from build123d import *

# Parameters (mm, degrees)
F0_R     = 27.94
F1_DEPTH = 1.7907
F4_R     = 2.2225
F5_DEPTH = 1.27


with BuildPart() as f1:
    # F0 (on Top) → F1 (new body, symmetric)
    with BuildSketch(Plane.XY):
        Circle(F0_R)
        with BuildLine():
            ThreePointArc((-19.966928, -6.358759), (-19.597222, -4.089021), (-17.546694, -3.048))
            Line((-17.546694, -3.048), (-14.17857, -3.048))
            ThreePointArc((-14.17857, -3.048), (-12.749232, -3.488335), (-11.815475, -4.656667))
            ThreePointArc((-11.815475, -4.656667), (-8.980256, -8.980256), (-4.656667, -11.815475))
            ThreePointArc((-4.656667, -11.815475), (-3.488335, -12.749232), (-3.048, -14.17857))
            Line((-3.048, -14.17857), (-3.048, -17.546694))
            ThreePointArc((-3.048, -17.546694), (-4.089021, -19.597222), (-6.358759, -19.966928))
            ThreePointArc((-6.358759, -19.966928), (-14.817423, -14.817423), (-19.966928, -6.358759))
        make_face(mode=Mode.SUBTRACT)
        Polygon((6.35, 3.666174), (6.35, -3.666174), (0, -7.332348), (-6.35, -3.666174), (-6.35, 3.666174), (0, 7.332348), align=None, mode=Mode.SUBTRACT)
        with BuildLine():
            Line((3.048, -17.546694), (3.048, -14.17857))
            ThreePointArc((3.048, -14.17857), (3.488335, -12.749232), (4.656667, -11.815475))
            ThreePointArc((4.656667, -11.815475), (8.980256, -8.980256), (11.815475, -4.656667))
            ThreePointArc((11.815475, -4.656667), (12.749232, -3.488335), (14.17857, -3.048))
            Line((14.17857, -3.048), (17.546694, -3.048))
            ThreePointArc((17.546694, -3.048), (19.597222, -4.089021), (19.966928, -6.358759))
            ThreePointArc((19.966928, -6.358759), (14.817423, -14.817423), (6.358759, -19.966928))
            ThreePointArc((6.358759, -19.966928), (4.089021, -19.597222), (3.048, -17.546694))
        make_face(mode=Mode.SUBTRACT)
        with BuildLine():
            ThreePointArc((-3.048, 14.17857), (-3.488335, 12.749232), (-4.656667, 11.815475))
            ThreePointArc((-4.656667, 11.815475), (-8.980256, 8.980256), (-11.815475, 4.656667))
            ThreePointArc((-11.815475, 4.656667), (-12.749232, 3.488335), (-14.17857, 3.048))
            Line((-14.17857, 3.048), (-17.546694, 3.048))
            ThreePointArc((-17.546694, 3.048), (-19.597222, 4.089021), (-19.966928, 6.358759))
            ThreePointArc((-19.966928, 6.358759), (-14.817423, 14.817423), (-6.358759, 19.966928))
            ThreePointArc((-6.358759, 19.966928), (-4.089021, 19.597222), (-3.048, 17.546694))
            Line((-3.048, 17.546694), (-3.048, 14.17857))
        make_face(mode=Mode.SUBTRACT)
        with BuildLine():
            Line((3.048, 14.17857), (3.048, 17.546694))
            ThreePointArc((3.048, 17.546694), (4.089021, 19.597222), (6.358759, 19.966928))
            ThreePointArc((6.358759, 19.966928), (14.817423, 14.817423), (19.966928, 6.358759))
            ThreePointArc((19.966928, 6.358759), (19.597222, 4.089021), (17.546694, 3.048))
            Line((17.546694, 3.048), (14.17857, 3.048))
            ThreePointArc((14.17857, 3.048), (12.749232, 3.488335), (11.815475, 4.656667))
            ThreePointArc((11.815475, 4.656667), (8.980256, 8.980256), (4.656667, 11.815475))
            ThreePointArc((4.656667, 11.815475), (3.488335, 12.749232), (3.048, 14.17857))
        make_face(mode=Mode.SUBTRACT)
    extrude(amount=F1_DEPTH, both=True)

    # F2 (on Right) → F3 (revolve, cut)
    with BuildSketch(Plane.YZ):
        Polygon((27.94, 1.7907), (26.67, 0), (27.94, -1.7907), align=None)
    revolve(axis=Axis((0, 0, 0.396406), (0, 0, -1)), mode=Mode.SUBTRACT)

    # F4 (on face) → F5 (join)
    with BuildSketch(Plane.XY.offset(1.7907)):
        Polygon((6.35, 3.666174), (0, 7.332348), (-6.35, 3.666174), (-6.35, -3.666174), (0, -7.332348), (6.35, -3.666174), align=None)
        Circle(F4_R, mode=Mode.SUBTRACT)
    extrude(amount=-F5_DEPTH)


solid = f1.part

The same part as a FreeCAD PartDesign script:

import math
import FreeCAD as App
import Part
import Sketcher
from FreeCAD import Vector
Q = App.Units.Quantity

doc = App.newDocument("Part")
params = doc.addObject("Spreadsheet::Sheet", "Params")
for row, (alias, value) in enumerate([
    ("sketch1_diameter", "2.2 in"),
    ("sketch1_radius", "0.1 in"),
    ("sketch1_radius2", "0.5 in"),
    ("sketch1_radius3", "0.8249999 in"),
    ("pad1_length", "0.141 in"),
    ("sketch2_height", "0.141 in"),
    ("groove_angle", "360 deg"),
    ("sketch3_diameter", "0.175 in"),
    ("pad2_length", "0.05 in"),
], start=1):
    params.set(f"A{row}", alias)
    params.set(f"B{row}", "=" + value)
    params.setAlias(f"B{row}", alias)

body = doc.addObject("PartDesign::Body", "Body")

# Sketch on XY plane
sketch1 = doc.addObject("Sketcher::SketchObject", "Sketch")
body.addObject(sketch1)
sketch1.AttachmentSupport = (doc.XY_Plane, [""])
sketch1.MapMode = "FlatFace"
sketch1.addGeometry([
    Part.Circle(Vector(0, 0, 0), Vector(0, 0, 1), 27.9),  # 0
    Part.ArcOfCircle(Part.Circle(Vector(0, 0, 0), Vector(0, 0, 1), 21), math.radians(-162), math.radians(-108)),  # 1
    Part.ArcOfCircle(Part.Circle(Vector(-17.5, -5.6, 0), Vector(0, 0, 1), 2.5), math.radians(90), math.radians(198)),  # 2
    Part.LineSegment(Vector(-17.5, -3, 0), Vector(-14.2, -3, 0)),  # 3
    Part.ArcOfCircle(Part.Circle(Vector(-14.2, -5.6, 0), Vector(0, 0, 1), 2.5), math.radians(22), math.radians(90)),  # 4
    Part.ArcOfCircle(Part.Circle(Vector(0, 0, 0), Vector(0, 0, 1), 12.7), math.radians(-158), math.radians(-112)),  # 5
    Part.ArcOfCircle(Part.Circle(Vector(-5.6, -14.2, 0), Vector(0, 0, 1), 2.5), math.radians(0), math.radians(68)),  # 6
    Part.LineSegment(Vector(-3, -14.2, 0), Vector(-3, -17.5, 0)),  # 7
    Part.ArcOfCircle(Part.Circle(Vector(-5.6, -17.5, 0), Vector(0, 0, 1), 2.5), math.radians(-108), math.radians(0)),  # 8
    Part.ArcOfCircle(Part.Circle(Vector(5.6, -17.5, 0), Vector(0, 0, 1), 2.5), math.radians(180), math.radians(288)),  # 9
    Part.LineSegment(Vector(3, -17.5, 0), Vector(3, -14.2, 0)),  # 10
    Part.ArcOfCircle(Part.Circle(Vector(5.6, -14.2, 0), Vector(0, 0, 1), 2.5), math.radians(112), math.radians(180)),  # 11
    Part.ArcOfCircle(Part.Circle(Vector(0, 0, 0), Vector(0, 0, 1), 12.7), math.radians(-68), math.radians(-22)),  # 12
    Part.ArcOfCircle(Part.Circle(Vector(14.2, -5.6, 0), Vector(0, 0, 1), 2.5), math.radians(90), math.radians(158)),  # 13
    Part.LineSegment(Vector(14.2, -3, 0), Vector(17.5, -3, 0)),  # 14
    Part.ArcOfCircle(Part.Circle(Vector(17.5, -5.6, 0), Vector(0, 0, 1), 2.5), math.radians(-18), math.radians(90)),  # 15
    Part.ArcOfCircle(Part.Circle(Vector(0, 0, 0), Vector(0, 0, 1), 21), math.radians(-72), math.radians(-18)),  # 16
    Part.LineSegment(Vector(-3, 17.5, 0), Vector(-3, 14.2, 0)),  # 17
    Part.ArcOfCircle(Part.Circle(Vector(-5.6, 14.2, 0), Vector(0, 0, 1), 2.5), math.radians(-68), math.radians(0)),  # 18
    Part.ArcOfCircle(Part.Circle(Vector(0, 0, 0), Vector(0, 0, 1), 12.7), math.radians(112), math.radians(158)),  # 19
    Part.ArcOfCircle(Part.Circle(Vector(-14.2, 5.6, 0), Vector(0, 0, 1), 2.5), math.radians(-90), math.radians(-22)),  # 20
    Part.LineSegment(Vector(-14.2, 3, 0), Vector(-17.5, 3, 0)),  # 21
    Part.ArcOfCircle(Part.Circle(Vector(-17.5, 5.6, 0), Vector(0, 0, 1), 2.5), math.radians(162), math.radians(270)),  # 22
    Part.ArcOfCircle(Part.Circle(Vector(0, 0, 0), Vector(0, 0, 1), 21), math.radians(108), math.radians(162)),  # 23
    Part.ArcOfCircle(Part.Circle(Vector(-5.6, 17.5, 0), Vector(0, 0, 1), 2.5), math.radians(0), math.radians(108)),  # 24
    Part.LineSegment(Vector(0, 7.3, 0), Vector(6.3, 3.7, 0)),  # 25
    Part.LineSegment(Vector(6.3, 3.7, 0), Vector(6.3, -3.7, 0)),  # 26
    Part.LineSegment(Vector(6.3, -3.7, 0), Vector(0, -7.3, 0)),  # 27
    Part.LineSegment(Vector(0, -7.3, 0), Vector(-6.3, -3.7, 0)),  # 28
    Part.LineSegment(Vector(-6.3, -3.7, 0), Vector(-6.3, 3.7, 0)),  # 29
    Part.LineSegment(Vector(-6.3, 3.7, 0), Vector(0, 7.3, 0)),  # 30
    Part.ArcOfCircle(Part.Circle(Vector(5.6, 14.2, 0), Vector(0, 0, 1), 2.5), math.radians(180), math.radians(248)),  # 31
    Part.LineSegment(Vector(3, 14.2, 0), Vector(3, 17.5, 0)),  # 32
    Part.ArcOfCircle(Part.Circle(Vector(5.6, 17.5, 0), Vector(0, 0, 1), 2.5), math.radians(72), math.radians(180)),  # 33
    Part.ArcOfCircle(Part.Circle(Vector(0, 0, 0), Vector(0, 0, 1), 21), math.radians(18), math.radians(72)),  # 34
    Part.ArcOfCircle(Part.Circle(Vector(17.5, 5.6, 0), Vector(0, 0, 1), 2.5), math.radians(-90), math.radians(18)),  # 35
    Part.LineSegment(Vector(17.5, 3, 0), Vector(14.2, 3, 0)),  # 36
    Part.ArcOfCircle(Part.Circle(Vector(14.2, 5.6, 0), Vector(0, 0, 1), 2.5), math.radians(-158), math.radians(-90)),  # 37
    Part.ArcOfCircle(Part.Circle(Vector(0, 0, 0), Vector(0, 0, 1), 12.7), math.radians(22), math.radians(68)),  # 38
], False)
sketch1.addConstraint([
    Sketcher.Constraint("Tangent", 1, 1, 2, 2),
    Sketcher.Constraint("Tangent", 2, 1, 3, 1),
    Sketcher.Constraint("Tangent", 3, 2, 4, 2),
    Sketcher.Constraint("Tangent", 4, 1, 5, 1),
    Sketcher.Constraint("Tangent", 5, 2, 6, 2),
    Sketcher.Constraint("Tangent", 6, 1, 7, 1),
    Sketcher.Constraint("Tangent", 7, 2, 8, 2),
    Sketcher.Constraint("Tangent", 8, 1, 1, 2),
    Sketcher.Constraint("Tangent", 9, 1, 10, 1),
    Sketcher.Constraint("Tangent", 10, 2, 11, 2),
    Sketcher.Constraint("Tangent", 11, 1, 12, 1),
    Sketcher.Constraint("Tangent", 12, 2, 13, 2),
    Sketcher.Constraint("Tangent", 13, 1, 14, 1),
    Sketcher.Constraint("Tangent", 14, 2, 15, 2),
    Sketcher.Constraint("Tangent", 15, 1, 16, 2),
    Sketcher.Constraint("Tangent", 16, 1, 9, 2),
    Sketcher.Constraint("Tangent", 17, 2, 18, 2),
    Sketcher.Constraint("Tangent", 18, 1, 19, 1),
    Sketcher.Constraint("Tangent", 19, 2, 20, 2),
    Sketcher.Constraint("Tangent", 20, 1, 21, 1),
    Sketcher.Constraint("Tangent", 21, 2, 22, 2),
    Sketcher.Constraint("Tangent", 22, 1, 23, 2),
    Sketcher.Constraint("Tangent", 23, 1, 24, 2),
    Sketcher.Constraint("Tangent", 24, 1, 17, 1),
    Sketcher.Constraint("Coincident", 25, 2, 26, 1),
    Sketcher.Constraint("Coincident", 26, 2, 27, 1),
    Sketcher.Constraint("Coincident", 27, 2, 28, 1),
    Sketcher.Constraint("Coincident", 28, 2, 29, 1),
    Sketcher.Constraint("Coincident", 29, 2, 30, 1),
    Sketcher.Constraint("Coincident", 30, 2, 25, 1),
    Sketcher.Constraint("Tangent", 31, 1, 32, 1),
    Sketcher.Constraint("Tangent", 32, 2, 33, 2),
    Sketcher.Constraint("Tangent", 33, 1, 34, 2),
    Sketcher.Constraint("Tangent", 34, 1, 35, 2),
    Sketcher.Constraint("Tangent", 35, 1, 36, 1),
    Sketcher.Constraint("Tangent", 36, 2, 37, 2),
    Sketcher.Constraint("Tangent", 37, 1, 38, 1),
    Sketcher.Constraint("Tangent", 38, 2, 31, 2),
    Sketcher.Constraint("Horizontal", 3),
    Sketcher.Constraint("Vertical", 7),
    Sketcher.Constraint("Vertical", 10),
    Sketcher.Constraint("Horizontal", 14),
    Sketcher.Constraint("Vertical", 17),
    Sketcher.Constraint("Horizontal", 21),
    Sketcher.Constraint("Vertical", 26),
    Sketcher.Constraint("Vertical", 29),
    Sketcher.Constraint("Vertical", 32),
    Sketcher.Constraint("Horizontal", 36),
    Sketcher.Constraint("Coincident", 0, 3, -1, 1),
    Sketcher.Constraint("Coincident", 1, 3, -1, 1),
    Sketcher.Constraint("Coincident", 5, 3, -1, 1),
    Sketcher.Constraint("Coincident", 12, 3, -1, 1),
    Sketcher.Constraint("Coincident", 16, 3, -1, 1),
    Sketcher.Constraint("Coincident", 19, 3, -1, 1),
    Sketcher.Constraint("Coincident", 23, 3, -1, 1),
    Sketcher.Constraint("Coincident", 34, 3, -1, 1),
    Sketcher.Constraint("Coincident", 38, 3, -1, 1),
    Sketcher.Constraint("Equal", 2, 4),
    Sketcher.Constraint("Equal", 4, 6),
    Sketcher.Constraint("Equal", 6, 8),
    Sketcher.Constraint("Equal", 8, 9),
    Sketcher.Constraint("Equal", 9, 11),
    Sketcher.Constraint("Equal", 5, 12),
    Sketcher.Constraint("Equal", 11, 13),
    Sketcher.Constraint("Equal", 13, 15),
    Sketcher.Constraint("Equal", 1, 16),
    Sketcher.Constraint("Equal", 15, 18),
    Sketcher.Constraint("Equal", 12, 19),
    Sketcher.Constraint("Equal", 18, 20),
    Sketcher.Constraint("Equal", 20, 22),
    Sketcher.Constraint("Equal", 16, 23),
    Sketcher.Constraint("Equal", 22, 24),
    Sketcher.Constraint("Equal", 24, 31),
    Sketcher.Constraint("Equal", 31, 33),
    Sketcher.Constraint("Equal", 23, 34),
    Sketcher.Constraint("Equal", 33, 35),
    Sketcher.Constraint("Equal", 35, 37),
    Sketcher.Constraint("Equal", 19, 38),
    Sketcher.Constraint("Symmetric", 25, 2, 28, 2, -1, 1),
    Sketcher.Constraint("Symmetric", 27, 2, 30, 2, -1, 1),
    Sketcher.Constraint("PointOnObject", 27, 2, -2),
    Sketcher.Constraint("Parallel", 27, 30),
    Sketcher.Constraint("Horizontal", 8, 3, 9, 3),
    Sketcher.Constraint("Horizontal", 4, 3, 13, 3),
    Sketcher.Constraint("Horizontal", 18, 3, 31, 3),
    Sketcher.Constraint("Horizontal", 22, 3, 35, 3),
    Sketcher.Constraint("Horizontal", 26, 2, 28, 2),
    Sketcher.Constraint("Vertical", 8, 3, 18, 3),
    Sketcher.Constraint("Vertical", 4, 3, 20, 3),
    Sketcher.Constraint("Equal", 36, 7),
    Sketcher.Constraint("Diameter", 0, Q("2.2 in")),
    Sketcher.Constraint("Radius", 2, Q("0.1 in")),
    Sketcher.Constraint("Radius", 5, Q("0.5 in")),
    Sketcher.Constraint("Angle", 25, Q("-29.999999 deg")),
    Sketcher.Constraint("Radius", 1, Q("0.8249999 in")),
    Sketcher.Constraint("DistanceY", 2, 3, -1, 1, Q("0.22 in")),
    Sketcher.Constraint("DistanceX", -1, 1, 25, 2, Q("0.25 in")),
    Sketcher.Constraint("DistanceY", 26, 2, 26, 1, 7.332348),
])
sketch1.setExpression("Constraints[90]", "Params.sketch1_diameter")
sketch1.setExpression("Constraints[91]", "Params.sketch1_radius")
sketch1.setExpression("Constraints[92]", "Params.sketch1_radius2")
sketch1.setExpression("Constraints[94]", "Params.sketch1_radius3")
pad1 = doc.addObject("PartDesign::Pad", "Pad")
body.addObject(pad1)
pad1.Profile = sketch1
pad1.setExpression("Length", "Params.pad1_length")
pad1.Midplane = True

# Sketch on YZ plane
sketch2 = doc.addObject("Sketcher::SketchObject", "Sketch001")
body.addObject(sketch2)
sketch2.AttachmentSupport = (doc.YZ_Plane, [""])
sketch2.MapMode = "FlatFace"
sketch2.addGeometry([
    Part.LineSegment(Vector(27.9, 1.8, 0), Vector(26.7, 0, 0)),
    Part.LineSegment(Vector(26.7, 0, 0), Vector(27.9, -1.8, 0)),
    Part.LineSegment(Vector(27.9, -1.8, 0), Vector(27.9, 1.8, 0)),
], False)
sketch2.addConstraint([
    Sketcher.Constraint("Coincident", 0, 2, 1, 1),
    Sketcher.Constraint("Coincident", 1, 2, 2, 1),
    Sketcher.Constraint("Coincident", 2, 2, 0, 1),
    Sketcher.Constraint("Vertical", 2),
    Sketcher.Constraint("PointOnObject", 0, 2, -1),
    Sketcher.Constraint("Equal", 0, 1),
    Sketcher.Constraint("DistanceX", -1, 1, 1, 2, Q("1.1 in")),
    Sketcher.Constraint("DistanceY", 2, 1, 2, 2, Q("0.141 in")),
    Sketcher.Constraint("DistanceX", -1, 1, 0, 2, Q("1.05 in")),
])
sketch2.setExpression("Constraints[7]", "Params.sketch2_height")
groove = doc.addObject("PartDesign::Groove", "Groove")
body.addObject(groove)
groove.Profile = sketch2
groove.ReferenceAxis = (sketch2, ["V_Axis"])
groove.setExpression("Angle", "Params.groove_angle")

# Sketch on XY plane
sketch3 = doc.addObject("Sketcher::SketchObject", "Sketch002")
body.addObject(sketch3)
sketch3.AttachmentSupport = (doc.XY_Plane, [""])
sketch3.MapMode = "FlatFace"
sketch3.AttachmentOffset = App.Placement(Vector(0, 0, 0.0705 * 25.4), App.Rotation())
sketch3.addGeometry([
    Part.LineSegment(Vector(6.3, 3.7, 0), Vector(0, 7.3, 0)),  # 0
    Part.LineSegment(Vector(0, 7.3, 0), Vector(-6.3, 3.7, 0)),  # 1
    Part.LineSegment(Vector(-6.3, 3.7, 0), Vector(-6.3, -3.7, 0)),  # 2
    Part.LineSegment(Vector(-6.3, -3.7, 0), Vector(0, -7.3, 0)),  # 3
    Part.LineSegment(Vector(0, -7.3, 0), Vector(6.3, -3.7, 0)),  # 4
    Part.LineSegment(Vector(6.3, -3.7, 0), Vector(6.3, 3.7, 0)),  # 5
    Part.Circle(Vector(0, 0, 0), Vector(0, 0, 1), 2.2),  # 6
], False)
sketch3.addConstraint([
    Sketcher.Constraint("Coincident", 0, 2, 1, 1),
    Sketcher.Constraint("Coincident", 1, 2, 2, 1),
    Sketcher.Constraint("Coincident", 2, 2, 3, 1),
    Sketcher.Constraint("Coincident", 3, 2, 4, 1),
    Sketcher.Constraint("Coincident", 4, 2, 5, 1),
    Sketcher.Constraint("Coincident", 5, 2, 0, 1),
    Sketcher.Constraint("Vertical", 2),
    Sketcher.Constraint("Vertical", 5),
    Sketcher.Constraint("Coincident", 6, 3, -1, 1),
    Sketcher.Constraint("Symmetric", 0, 2, 3, 2, -1, 1),
    Sketcher.Constraint("Symmetric", 1, 2, 4, 2, -1, 1),
    Sketcher.Constraint("PointOnObject", 0, 2, -2),
    Sketcher.Constraint("Parallel", 0, 3),
    Sketcher.Constraint("Horizontal", 2, 2, 4, 2),
    Sketcher.Constraint("Diameter", 6, Q("0.175 in")),
    Sketcher.Constraint("Angle", 0, Q("150.000001 deg")),
    Sketcher.Constraint("DistanceX", 2, 2, 4, 2, Q("0.5 in")),
    Sketcher.Constraint("DistanceY", 2, 2, 2, 1, 7.332348),
])
sketch3.setExpression("Constraints[14]", "Params.sketch3_diameter")
pad2 = doc.addObject("PartDesign::Pad", "Pad001")
body.addObject(pad2)
pad2.Profile = sketch3
pad2.setExpression("Length", "Params.pad2_length")
pad2.Reversed = True

doc.recompute()
